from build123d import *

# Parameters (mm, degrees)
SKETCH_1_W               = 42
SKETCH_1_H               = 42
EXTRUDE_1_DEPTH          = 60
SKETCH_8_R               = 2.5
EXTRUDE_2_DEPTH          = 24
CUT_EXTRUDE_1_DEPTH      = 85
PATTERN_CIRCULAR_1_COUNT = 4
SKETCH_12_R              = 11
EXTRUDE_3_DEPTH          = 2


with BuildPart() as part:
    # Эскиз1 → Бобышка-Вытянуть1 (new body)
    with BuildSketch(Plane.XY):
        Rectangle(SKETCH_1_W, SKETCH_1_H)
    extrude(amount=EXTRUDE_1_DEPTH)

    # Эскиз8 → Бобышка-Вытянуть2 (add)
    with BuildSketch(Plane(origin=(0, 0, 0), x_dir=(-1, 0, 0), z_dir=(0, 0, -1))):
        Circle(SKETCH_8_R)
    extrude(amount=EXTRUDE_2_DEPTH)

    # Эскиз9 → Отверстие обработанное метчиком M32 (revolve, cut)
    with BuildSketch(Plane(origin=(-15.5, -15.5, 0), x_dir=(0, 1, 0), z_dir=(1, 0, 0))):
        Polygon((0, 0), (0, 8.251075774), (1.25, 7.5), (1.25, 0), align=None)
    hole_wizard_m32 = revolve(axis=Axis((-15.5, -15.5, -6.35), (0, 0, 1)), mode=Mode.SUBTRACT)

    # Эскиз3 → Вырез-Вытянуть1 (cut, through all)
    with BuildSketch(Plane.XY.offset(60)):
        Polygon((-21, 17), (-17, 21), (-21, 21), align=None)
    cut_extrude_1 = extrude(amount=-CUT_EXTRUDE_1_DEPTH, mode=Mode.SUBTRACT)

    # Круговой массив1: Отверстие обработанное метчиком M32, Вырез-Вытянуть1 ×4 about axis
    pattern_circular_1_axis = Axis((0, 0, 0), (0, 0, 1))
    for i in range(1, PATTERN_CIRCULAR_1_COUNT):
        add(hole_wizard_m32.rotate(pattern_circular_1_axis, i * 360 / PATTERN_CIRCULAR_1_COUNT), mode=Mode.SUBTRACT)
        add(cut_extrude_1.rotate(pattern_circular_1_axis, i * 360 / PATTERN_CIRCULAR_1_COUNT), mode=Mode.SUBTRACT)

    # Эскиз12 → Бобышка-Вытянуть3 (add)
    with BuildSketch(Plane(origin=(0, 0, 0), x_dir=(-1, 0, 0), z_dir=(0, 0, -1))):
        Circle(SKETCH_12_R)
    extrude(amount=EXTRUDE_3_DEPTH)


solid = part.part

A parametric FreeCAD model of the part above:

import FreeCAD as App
import Part
import Sketcher
Q = App.Units.Quantity


def add_polygon(sketch, points):
    """Adds a closed chain of lines whose ends are joined by coincident constraints."""
    first, n = sketch.GeometryCount, len(points)
    for a, b in zip(points, points[1:] + points[:1]):
        sketch.addGeometry(Part.LineSegment(App.Vector(*a, 0), App.Vector(*b, 0)), False)
    for i in range(n):
        sketch.addConstraint(Sketcher.Constraint("Coincident", first + i, 2, first + (i + 1) % n, 1))

doc = App.newDocument("Part")
body = doc.addObject("PartDesign::Body", "Body")

sketch1 = doc.addObject("Sketcher::SketchObject", "Sketch")
body.addObject(sketch1)
sketch1.AttachmentSupport = (doc.XY_Plane, [""])
sketch1.MapMode = "FlatFace"
add_polygon(sketch1, [(-21, 21), (-21, -21), (21, -21), (21, 21)])
sketch1.addConstraint(Sketcher.Constraint("Vertical", 0))
sketch1.addConstraint(Sketcher.Constraint("Horizontal", 1))
sketch1.addConstraint(Sketcher.Constraint("Vertical", 2))
sketch1.addConstraint(Sketcher.Constraint("Horizontal", 3))
sketch1.addConstraint(Sketcher.Constraint("Symmetric", 0, 2, 2, 2, -1, 1))
sketch1.addConstraint(Sketcher.Constraint("Equal", 3, 0))
sketch1.addConstraint(Sketcher.Constraint("DistanceX", 1, 1, 1, 2, Q("42 mm")))
pad1 = doc.addObject("PartDesign::Pad", "Pad")
body.addObject(pad1)
pad1.Profile = sketch1
pad1.Length = 60

sketch2 = doc.addObject("Sketcher::SketchObject", "Sketch001")
body.addObject(sketch2)
sketch2.AttachmentSupport = (doc.XY_Plane, [""])
sketch2.MapMode = "FlatFace"
sketch2.addGeometry(Part.Circle(App.Vector(0, 0, 0), App.Vector(0, 0, 1), 2.5), False)
sketch2.addConstraint(Sketcher.Constraint("Coincident", 0, 3, -1, 1))
sketch2.addConstraint(Sketcher.Constraint("Diameter", 0, Q("5 mm")))
pad2 = doc.addObject("PartDesign::Pad", "Pad001")
body.addObject(pad2)
pad2.Profile = sketch2
pad2.Length = 24
pad2.Reversed = True

sketch3 = doc.addObject("Sketcher::SketchObject", "Sketch002")
body.addObject(sketch3)
sketch3.AttachmentSupport = (doc.YZ_Plane, [""])
sketch3.MapMode = "FlatFace"
sketch3.AttachmentOffset = App.Placement(App.Vector(0, 0, -15.5), App.Rotation())
add_polygon(sketch3, [(-15.5, 8.251076), (-15.5, 0), (-14.25, 0), (-14.25, 7.5)])
sketch3.addGeometry(Part.LineSegment(App.Vector(-15.5, 0, 0), App.Vector(-15.5, 8.251076, 0)), True)
sketch3.addConstraint(Sketcher.Constraint("Vertical", 0))
sketch3.addConstraint(Sketcher.Constraint("Horizontal", 1))
sketch3.addConstraint(Sketcher.Constraint("Vertical", 2))
sketch3.addConstraint(Sketcher.Constraint("Vertical", 4))
sketch3.addConstraint(Sketcher.Constraint("Coincident", 4, 1, 0, 2))
sketch3.addConstraint(Sketcher.Constraint("PointOnObject", 0, 2, -1))
sketch3.addConstraint(Sketcher.Constraint("Equal", 0, 4))
sketch3.addConstraint(Sketcher.Constraint("Angle", 3, Q("149 deg")))
sketch3.addConstraint(Sketcher.Constraint("DistanceY", 2, 1, 2, 2, Q("7.5 mm")))
sketch3.addConstraint(Sketcher.Constraint("DistanceX", 1, 1, 1, 2, Q("1.25 mm")))
sketch3.addConstraint(Sketcher.Constraint("DistanceX", 0, 2, -1, 1, Q("15.5 mm")))
groove = doc.addObject("PartDesign::Groove", "Groove")
body.addObject(groove)
groove.Profile = sketch3
groove.ReferenceAxis = (sketch3, ["Axis0"])
groove.Angle = 360

sketch4 = doc.addObject("Sketcher::SketchObject", "Sketch003")
body.addObject(sketch4)
sketch4.AttachmentSupport = (doc.XY_Plane, [""])
sketch4.MapMode = "FlatFace"
sketch4.AttachmentOffset = App.Placement(App.Vector(0, 0, 60), App.Rotation())
add_polygon(sketch4, [(-21, 17), (-17, 21), (-21, 21)])
sketch4.addConstraint(Sketcher.Constraint("Horizontal", 1))
sketch4.addConstraint(Sketcher.Constraint("Vertical", 2))
sketch4.addConstraint(Sketcher.Constraint("Equal", 1, 2))
sketch4.addConstraint(Sketcher.Constraint("DistanceX", 1, 2, 1, 1, Q("4 mm")))
sketch4.addConstraint(Sketcher.Constraint("DistanceX", 0, 2, -1, 1, Q("17 mm")))
sketch4.addConstraint(Sketcher.Constraint("DistanceY", -1, 1, 0, 2, Q("21 mm")))
pocket1 = doc.addObject("PartDesign::Pocket", "Pocket")
body.addObject(pocket1)
pocket1.Profile = sketch4
pocket1.Type = "ThroughAll"
doc.recompute()

polarpattern = doc.addObject("PartDesign::PolarPattern", "PolarPattern")
body.addObject(polarpattern)
polarpattern.Originals = [groove, pocket1]
polarpattern.Axis = (doc.Z_Axis, [""])
polarpattern.Angle = 360
polarpattern.Occurrences = 4
body.Tip = polarpattern

sketch5 = doc.addObject("Sketcher::SketchObject", "Sketch004")
body.addObject(sketch5)
sketch5.AttachmentSupport = (doc.XY_Plane, [""])
sketch5.MapMode = "FlatFace"
sketch5.addGeometry(Part.Circle(App.Vector(0, 0, 0), App.Vector(0, 0, 1), 11), False)
sketch5.addConstraint(Sketcher.Constraint("Coincident", 0, 3, -1, 1))
sketch5.addConstraint(Sketcher.Constraint("Diameter", 0, Q("22 mm")))
pad3 = doc.addObject("PartDesign::Pad", "Pad002")
body.addObject(pad3)
pad3.Profile = sketch5
pad3.Length = 2
pad3.Reversed = True

doc.recompute()
